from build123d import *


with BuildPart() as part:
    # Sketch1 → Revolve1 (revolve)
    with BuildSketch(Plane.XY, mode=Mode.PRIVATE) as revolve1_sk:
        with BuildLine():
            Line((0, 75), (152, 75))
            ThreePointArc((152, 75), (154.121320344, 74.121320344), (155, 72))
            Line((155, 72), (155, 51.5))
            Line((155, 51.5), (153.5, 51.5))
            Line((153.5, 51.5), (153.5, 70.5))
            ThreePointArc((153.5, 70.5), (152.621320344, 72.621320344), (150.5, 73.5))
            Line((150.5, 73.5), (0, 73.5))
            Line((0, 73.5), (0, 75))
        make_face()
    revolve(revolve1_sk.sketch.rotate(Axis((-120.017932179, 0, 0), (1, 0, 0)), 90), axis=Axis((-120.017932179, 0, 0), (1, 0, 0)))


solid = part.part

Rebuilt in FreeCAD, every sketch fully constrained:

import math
import FreeCAD as App
import Part
import Sketcher
from FreeCAD import Vector
Q = App.Units.Quantity

doc = App.newDocument("Part")
params = doc.addObject("Spreadsheet::Sheet", "Params")
for row, (alias, value) in enumerate([
    ("sketch1_radius", "3 mm"),
    ("sketch1_width", "152 mm"),
    ("sketch1_height", "19 mm"),
    ("sketch1_width2", "150.5 mm"),
    ("revolution_angle", "360 deg"),
], start=1):
    params.set(f"A{row}", alias)
    params.set(f"B{row}", "=" + value)
    params.setAlias(f"B{row}", alias)

body = doc.addObject("PartDesign::Body", "Body")

# Sketch on XY plane
sketch1 = body.newObject("Sketcher::SketchObject", "Sketch")
sketch1.AttachmentSupport = (doc.getObject("XY_Plane"), [""])
sketch1.MapMode = "FlatFace"
sketch1.addGeometry(Part.LineSegment(Vector(152, 75, 0), Vector(0, 75, 0)), False)
sketch1.addGeometry(Part.LineSegment(Vector(0, 75, 0), Vector(0, 73.5, 0)), False)
sketch1.addGeometry(Part.LineSegment(Vector(0, 73.5, 0), Vector(150.5, 73.5, 0)), False)
sketch1.addGeometry(Part.ArcOfCircle(Part.Circle(Vector(150.5, 70.5, 0), Vector(0, 0, 1), 3), math.radians(0), math.radians(90)), False)
sketch1.addGeometry(Part.LineSegment(Vector(153.5, 70.5, 0), Vector(153.5, 51.5, 0)), False)
sketch1.addGeometry(Part.LineSegment(Vector(153.5, 51.5, 0), Vector(155, 51.5, 0)), False)
sketch1.addGeometry(Part.LineSegment(Vector(155, 51.5, 0), Vector(155, 72, 0)), False)
sketch1.addGeometry(Part.ArcOfCircle(Part.Circle(Vector(152, 72, 0), Vector(0, 0, 1), 3), math.radians(0), math.radians(90)), False)
sketch1.addConstraint(Sketcher.Constraint("Coincident", 0, 2, 1, 1))
sketch1.addConstraint(Sketcher.Constraint("Coincident", 1, 2, 2, 1))
sketch1.addConstraint(Sketcher.Constraint("Tangent", 2, 2, 3, 2))
sketch1.addConstraint(Sketcher.Constraint("Tangent", 3, 1, 4, 1))
sketch1.addConstraint(Sketcher.Constraint("Coincident", 4, 2, 5, 1))
sketch1.addConstraint(Sketcher.Constraint("Coincident", 5, 2, 6, 1))
sketch1.addConstraint(Sketcher.Constraint("Tangent", 6, 2, 7, 1))
sketch1.addConstraint(Sketcher.Constraint("Tangent", 7, 2, 0, 1))
sketch1.addConstraint(Sketcher.Constraint("Horizontal", 0))
sketch1.addConstraint(Sketcher.Constraint("Vertical", 1))
sketch1.addConstraint(Sketcher.Constraint("Horizontal", 2))
sketch1.addConstraint(Sketcher.Constraint("Vertical", 4))
sketch1.addConstraint(Sketcher.Constraint("Horizontal", 5))
sketch1.addConstraint(Sketcher.Constraint("Vertical", 6))
sketch1.addConstraint(Sketcher.Constraint("Equal", 3, 7))
sketch1.addConstraint(Sketcher.Constraint("PointOnObject", 0, 2, -2))
sketch1.addConstraint(Sketcher.Constraint("Equal", 5, 1))
sketch1.addConstraint(Sketcher.Constraint("Radius", 3, Q("3 mm")))
sketch1.addConstraint(Sketcher.Constraint("DistanceX", 0, 2, 0, 1, Q("152 mm")))
sketch1.addConstraint(Sketcher.Constraint("DistanceY", 4, 2, 4, 1, Q("19 mm")))
sketch1.addConstraint(Sketcher.Constraint("DistanceX", 2, 1, 2, 2, Q("150.5 mm")))
sketch1.addConstraint(Sketcher.Constraint("DistanceY", -1, 1, 7, 3, Q("72 mm")))
sketch1.setExpression("Constraints[17]", "Params.sketch1_radius")
sketch1.setExpression("Constraints[18]", "Params.sketch1_width")
sketch1.setExpression("Constraints[19]", "Params.sketch1_height")
sketch1.setExpression("Constraints[20]", "Params.sketch1_width2")
revolution = body.newObject("PartDesign::Revolution", "Revolution")
revolution.Profile = sketch1
revolution.ReferenceAxis = (sketch1, ["H_Axis"])
revolution.setExpression("Angle", "Params.revolution_angle")

doc.recompute()
